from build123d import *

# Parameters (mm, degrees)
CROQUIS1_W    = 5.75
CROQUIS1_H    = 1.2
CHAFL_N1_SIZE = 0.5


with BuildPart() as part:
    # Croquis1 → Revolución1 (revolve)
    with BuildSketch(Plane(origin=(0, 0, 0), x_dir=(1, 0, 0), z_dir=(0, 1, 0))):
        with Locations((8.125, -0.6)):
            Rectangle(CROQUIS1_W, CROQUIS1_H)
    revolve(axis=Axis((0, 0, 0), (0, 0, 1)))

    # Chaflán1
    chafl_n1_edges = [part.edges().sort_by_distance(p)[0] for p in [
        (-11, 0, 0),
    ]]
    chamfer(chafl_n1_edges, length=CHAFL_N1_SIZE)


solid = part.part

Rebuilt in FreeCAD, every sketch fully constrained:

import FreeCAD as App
import Part
import Sketcher


def edges_at(feature, points):
    """Names of the edges that pass closest to the given points."""
    edges = feature.Shape.Edges
    near = lambda p: min(range(len(edges)), key=lambda i: edges[i].distToShape(Part.Vertex(*p))[0])
    return sorted({f"Edge{near(p) + 1}" for p in points})


def add_polygon(sketch, points):
    """Adds a closed chain of lines whose ends are joined by coincident constraints."""
    first, n = sketch.GeometryCount, len(points)
    for a, b in zip(points, points[1:] + points[:1]):
        sketch.addGeometry(Part.LineSegment(App.Vector(*a, 0), App.Vector(*b, 0)), False)
    for i in range(n):
        sketch.addConstraint(Sketcher.Constraint("Coincident", first + i, 2, first + (i + 1) % n, 1))

doc = App.newDocument("Part")
body = doc.addObject("PartDesign::Body", "Body")

# Sketch on XZ plane
sketch1 = body.newObject("Sketcher::SketchObject", "Sketch")
sketch1.AttachmentSupport = (doc.getObject("XZ_Plane"), [""])
sketch1.MapMode = "FlatFace"
add_polygon(sketch1, [(5.2, 0), (5.2, 1.2), (11, 1.2), (11, 0)])  # lines 0-3
sketch1.addConstraint([
    Sketcher.Constraint("Vertical", 0),
    Sketcher.Constraint("Horizontal", 1),
    Sketcher.Constraint("Vertical", 2),
    Sketcher.Constraint("Horizontal", 3),
    Sketcher.Constraint("PointOnObject", 2, 2, -1),
    Sketcher.Constraint("DistanceY", 0, 1, 0, 2, 1.2),
    Sketcher.Constraint("DistanceX", -1, 1, 1, 2, 11.0),
    Sketcher.Constraint("DistanceX", 1, 1, 1, 2, 5.75),
])
revolution = body.newObject("PartDesign::Revolution", "Revolution")
revolution.Profile = sketch1
revolution.ReferenceAxis = (sketch1, ["V_Axis"])
revolution.Angle = 360
doc.recompute()

chamfer = body.newObject("PartDesign::Chamfer", "Chamfer")
chamfer.Base = (revolution, edges_at(revolution, [(-11, 0, 0)]))
chamfer.Size = 0.5

doc.recompute()
